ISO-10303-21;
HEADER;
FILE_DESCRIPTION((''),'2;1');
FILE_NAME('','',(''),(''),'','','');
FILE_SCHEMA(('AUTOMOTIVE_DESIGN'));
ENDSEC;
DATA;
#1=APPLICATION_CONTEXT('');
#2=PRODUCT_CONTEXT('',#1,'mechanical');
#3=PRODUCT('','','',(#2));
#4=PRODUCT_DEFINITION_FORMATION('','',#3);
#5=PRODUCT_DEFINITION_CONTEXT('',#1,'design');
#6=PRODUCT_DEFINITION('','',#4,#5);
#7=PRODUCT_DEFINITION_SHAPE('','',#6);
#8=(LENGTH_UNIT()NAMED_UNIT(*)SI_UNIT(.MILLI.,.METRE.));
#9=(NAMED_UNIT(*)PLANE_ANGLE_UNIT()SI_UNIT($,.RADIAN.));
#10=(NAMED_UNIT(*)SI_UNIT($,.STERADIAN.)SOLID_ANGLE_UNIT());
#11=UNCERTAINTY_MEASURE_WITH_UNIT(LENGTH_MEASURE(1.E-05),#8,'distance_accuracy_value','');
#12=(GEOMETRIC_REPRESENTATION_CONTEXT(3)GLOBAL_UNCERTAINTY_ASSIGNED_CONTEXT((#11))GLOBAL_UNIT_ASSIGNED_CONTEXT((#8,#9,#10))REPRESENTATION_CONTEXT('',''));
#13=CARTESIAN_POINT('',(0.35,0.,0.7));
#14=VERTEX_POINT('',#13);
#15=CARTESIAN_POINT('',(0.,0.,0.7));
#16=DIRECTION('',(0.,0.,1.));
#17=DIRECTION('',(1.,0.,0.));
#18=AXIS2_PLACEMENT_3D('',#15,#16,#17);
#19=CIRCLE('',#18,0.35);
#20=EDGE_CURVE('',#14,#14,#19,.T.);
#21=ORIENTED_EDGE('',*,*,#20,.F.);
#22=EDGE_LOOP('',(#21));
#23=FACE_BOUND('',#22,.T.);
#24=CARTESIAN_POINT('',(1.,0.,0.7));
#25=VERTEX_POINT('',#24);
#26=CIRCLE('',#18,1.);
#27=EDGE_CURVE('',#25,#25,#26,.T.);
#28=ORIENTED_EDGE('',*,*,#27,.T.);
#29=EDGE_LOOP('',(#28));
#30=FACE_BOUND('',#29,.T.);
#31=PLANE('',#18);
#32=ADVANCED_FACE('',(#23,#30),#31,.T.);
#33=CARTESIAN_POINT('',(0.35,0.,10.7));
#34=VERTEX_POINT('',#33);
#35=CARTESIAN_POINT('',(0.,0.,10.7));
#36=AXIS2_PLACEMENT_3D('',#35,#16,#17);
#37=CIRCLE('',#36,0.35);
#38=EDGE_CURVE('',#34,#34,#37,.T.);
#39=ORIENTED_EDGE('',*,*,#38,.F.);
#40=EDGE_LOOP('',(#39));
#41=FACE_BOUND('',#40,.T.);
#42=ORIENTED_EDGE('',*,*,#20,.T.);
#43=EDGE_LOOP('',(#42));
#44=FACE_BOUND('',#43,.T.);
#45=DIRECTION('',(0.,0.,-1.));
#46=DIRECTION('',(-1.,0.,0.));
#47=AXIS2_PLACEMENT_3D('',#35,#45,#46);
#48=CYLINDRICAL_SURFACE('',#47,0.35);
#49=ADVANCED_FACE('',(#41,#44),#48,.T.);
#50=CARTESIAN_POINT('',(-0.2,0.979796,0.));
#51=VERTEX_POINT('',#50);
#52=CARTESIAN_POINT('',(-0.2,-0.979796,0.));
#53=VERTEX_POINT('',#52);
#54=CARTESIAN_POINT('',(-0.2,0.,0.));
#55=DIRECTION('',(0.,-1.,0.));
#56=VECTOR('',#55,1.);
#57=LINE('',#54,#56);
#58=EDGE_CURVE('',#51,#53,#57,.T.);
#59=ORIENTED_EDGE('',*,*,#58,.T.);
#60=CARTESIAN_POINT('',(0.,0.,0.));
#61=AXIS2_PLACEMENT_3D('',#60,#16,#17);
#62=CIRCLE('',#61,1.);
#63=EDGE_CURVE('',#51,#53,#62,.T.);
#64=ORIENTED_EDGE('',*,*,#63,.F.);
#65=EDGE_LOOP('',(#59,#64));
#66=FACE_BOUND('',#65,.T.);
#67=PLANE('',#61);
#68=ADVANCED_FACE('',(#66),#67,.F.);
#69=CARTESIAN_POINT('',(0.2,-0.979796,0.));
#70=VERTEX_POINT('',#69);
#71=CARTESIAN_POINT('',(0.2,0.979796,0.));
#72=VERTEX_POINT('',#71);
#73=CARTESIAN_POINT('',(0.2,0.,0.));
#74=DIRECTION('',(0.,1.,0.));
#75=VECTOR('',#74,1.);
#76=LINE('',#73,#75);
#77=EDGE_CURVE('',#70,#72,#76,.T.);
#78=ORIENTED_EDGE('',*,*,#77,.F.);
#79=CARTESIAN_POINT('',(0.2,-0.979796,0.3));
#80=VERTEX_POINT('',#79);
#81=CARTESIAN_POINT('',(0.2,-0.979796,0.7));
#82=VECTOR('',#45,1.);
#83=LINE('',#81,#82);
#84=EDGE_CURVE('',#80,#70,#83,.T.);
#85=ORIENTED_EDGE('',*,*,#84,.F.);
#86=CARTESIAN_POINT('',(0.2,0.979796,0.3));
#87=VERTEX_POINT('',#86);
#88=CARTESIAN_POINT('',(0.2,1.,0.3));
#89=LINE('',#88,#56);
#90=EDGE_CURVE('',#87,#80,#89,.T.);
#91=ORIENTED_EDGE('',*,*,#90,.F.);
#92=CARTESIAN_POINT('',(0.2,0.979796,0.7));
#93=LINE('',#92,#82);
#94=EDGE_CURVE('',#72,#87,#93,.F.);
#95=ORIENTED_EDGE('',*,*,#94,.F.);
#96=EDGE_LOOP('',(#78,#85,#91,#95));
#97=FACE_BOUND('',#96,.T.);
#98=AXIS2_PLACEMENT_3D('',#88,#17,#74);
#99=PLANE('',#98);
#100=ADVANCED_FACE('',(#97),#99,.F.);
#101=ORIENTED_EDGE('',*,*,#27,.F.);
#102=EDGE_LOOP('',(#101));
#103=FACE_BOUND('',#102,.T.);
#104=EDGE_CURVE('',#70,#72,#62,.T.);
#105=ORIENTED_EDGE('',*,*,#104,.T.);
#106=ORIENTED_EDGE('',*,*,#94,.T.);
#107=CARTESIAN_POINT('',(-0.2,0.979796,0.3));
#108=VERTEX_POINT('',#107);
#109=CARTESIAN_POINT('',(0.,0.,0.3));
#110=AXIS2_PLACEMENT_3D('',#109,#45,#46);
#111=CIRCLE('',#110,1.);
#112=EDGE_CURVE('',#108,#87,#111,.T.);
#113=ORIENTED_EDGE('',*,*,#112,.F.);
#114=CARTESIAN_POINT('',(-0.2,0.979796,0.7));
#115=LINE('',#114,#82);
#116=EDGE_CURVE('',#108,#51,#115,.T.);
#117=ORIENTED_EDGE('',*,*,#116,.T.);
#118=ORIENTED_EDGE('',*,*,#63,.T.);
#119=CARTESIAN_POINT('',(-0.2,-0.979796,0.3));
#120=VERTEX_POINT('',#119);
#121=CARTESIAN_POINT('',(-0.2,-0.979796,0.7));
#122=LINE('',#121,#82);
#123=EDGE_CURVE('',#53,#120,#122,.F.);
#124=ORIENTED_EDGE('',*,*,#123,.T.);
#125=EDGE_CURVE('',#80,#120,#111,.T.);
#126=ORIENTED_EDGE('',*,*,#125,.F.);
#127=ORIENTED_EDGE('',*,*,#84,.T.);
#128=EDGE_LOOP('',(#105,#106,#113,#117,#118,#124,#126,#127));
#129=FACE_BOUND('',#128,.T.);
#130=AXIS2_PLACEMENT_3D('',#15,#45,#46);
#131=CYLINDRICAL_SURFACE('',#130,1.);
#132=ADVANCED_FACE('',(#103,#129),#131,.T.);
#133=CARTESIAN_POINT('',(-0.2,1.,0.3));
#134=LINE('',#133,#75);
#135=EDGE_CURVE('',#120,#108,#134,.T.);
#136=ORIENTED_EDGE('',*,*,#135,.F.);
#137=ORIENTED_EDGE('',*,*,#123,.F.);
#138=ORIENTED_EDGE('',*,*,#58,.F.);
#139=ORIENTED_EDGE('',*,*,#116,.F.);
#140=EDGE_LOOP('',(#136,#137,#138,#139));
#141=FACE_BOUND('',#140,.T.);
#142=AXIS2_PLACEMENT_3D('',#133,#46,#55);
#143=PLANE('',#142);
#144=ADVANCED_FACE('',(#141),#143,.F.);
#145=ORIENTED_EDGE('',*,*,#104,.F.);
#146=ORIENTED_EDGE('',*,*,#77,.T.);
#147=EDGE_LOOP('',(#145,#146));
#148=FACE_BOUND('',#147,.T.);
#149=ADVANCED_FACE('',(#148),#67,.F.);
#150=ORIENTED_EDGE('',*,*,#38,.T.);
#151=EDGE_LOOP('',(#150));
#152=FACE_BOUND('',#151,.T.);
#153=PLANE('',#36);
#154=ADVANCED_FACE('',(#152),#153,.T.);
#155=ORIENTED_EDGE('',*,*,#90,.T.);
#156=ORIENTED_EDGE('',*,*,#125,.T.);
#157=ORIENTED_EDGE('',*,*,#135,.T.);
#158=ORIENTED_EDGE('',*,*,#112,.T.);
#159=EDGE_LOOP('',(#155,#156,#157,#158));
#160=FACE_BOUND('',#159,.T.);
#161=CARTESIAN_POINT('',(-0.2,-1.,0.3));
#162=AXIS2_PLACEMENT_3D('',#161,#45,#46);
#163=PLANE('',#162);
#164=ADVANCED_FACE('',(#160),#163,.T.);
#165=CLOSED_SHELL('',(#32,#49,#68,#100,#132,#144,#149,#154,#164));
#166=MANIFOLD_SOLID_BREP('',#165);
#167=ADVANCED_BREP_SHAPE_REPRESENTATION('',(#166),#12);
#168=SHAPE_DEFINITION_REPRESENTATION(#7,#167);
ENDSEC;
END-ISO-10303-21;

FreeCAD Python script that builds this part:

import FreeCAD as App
import Part
import Sketcher
Q = App.Units.Quantity


def add_polygon(sketch, points):
    """Adds a closed chain of lines whose ends are joined by coincident constraints."""
    first, n = sketch.GeometryCount, len(points)
    for a, b in zip(points, points[1:] + points[:1]):
        sketch.addGeometry(Part.LineSegment(App.Vector(*a, 0), App.Vector(*b, 0)), False)
    for i in range(n):
        sketch.addConstraint(Sketcher.Constraint("Coincident", first + i, 2, first + (i + 1) % n, 1))

doc = App.newDocument("Part")
body = doc.addObject("PartDesign::Body", "Body")

sketch1 = body.newObject("Sketcher::SketchObject", "Sketch")
sketch1.AttachmentSupport = (doc.getObject("XY_Plane"), [""])
sketch1.MapMode = "FlatFace"
sketch1.addGeometry(Part.Circle(App.Vector(0, 0, 0), App.Vector(0, 0, 1), 1), False)
sketch1.addConstraint([
    Sketcher.Constraint("Coincident", 0, 3, -1, 1),
    Sketcher.Constraint("Diameter", 0, Q("2 mm")),
])
pad1 = body.newObject("PartDesign::Pad", "Pad")
pad1.Profile = sketch1
pad1.Length = 0.7

sketch2 = body.newObject("Sketcher::SketchObject", "Sketch001")
sketch2.AttachmentSupport = (doc.getObject("XY_Plane"), [""])
sketch2.MapMode = "FlatFace"
sketch2.AttachmentOffset = App.Placement(App.Vector(0, 0, 0.7), App.Rotation())
sketch2.addGeometry(Part.Circle(App.Vector(0, 0, 0), App.Vector(0, 0, 1), 0.35), False)
sketch2.addConstraint([
    Sketcher.Constraint("Coincident", 0, 3, -1, 1),
    Sketcher.Constraint("Diameter", 0, Q("0.7 mm")),
])
pad2 = body.newObject("PartDesign::Pad", "Pad001")
pad2.Profile = sketch2
pad2.Length = 10

sketch3 = body.newObject("Sketcher::SketchObject", "Sketch002")
sketch3.AttachmentSupport = (doc.getObject("XY_Plane"), [""])
sketch3.MapMode = "FlatFace"
add_polygon(sketch3, [(0.2, 1), (0.2, -1), (-0.2, -1), (-0.2, 1)])
sketch3.addConstraint([
    Sketcher.Constraint("Vertical", 0),
    Sketcher.Constraint("Horizontal", 1),
    Sketcher.Constraint("Vertical", 2),
    Sketcher.Constraint("Horizontal", 3),
    Sketcher.Constraint("Symmetric", 0, 2, 2, 2, -1, 1),
    Sketcher.Constraint("DistanceY", 0, 2, 0, 1, Q("2 mm")),
    Sketcher.Constraint("DistanceX", 1, 2, 1, 1, Q("0.4 mm")),
])
pocket1 = body.newObject("PartDesign::Pocket", "Pocket")
pocket1.Profile = sketch3
pocket1.Length = 0.3
pocket1.Reversed = True

doc.recompute()
